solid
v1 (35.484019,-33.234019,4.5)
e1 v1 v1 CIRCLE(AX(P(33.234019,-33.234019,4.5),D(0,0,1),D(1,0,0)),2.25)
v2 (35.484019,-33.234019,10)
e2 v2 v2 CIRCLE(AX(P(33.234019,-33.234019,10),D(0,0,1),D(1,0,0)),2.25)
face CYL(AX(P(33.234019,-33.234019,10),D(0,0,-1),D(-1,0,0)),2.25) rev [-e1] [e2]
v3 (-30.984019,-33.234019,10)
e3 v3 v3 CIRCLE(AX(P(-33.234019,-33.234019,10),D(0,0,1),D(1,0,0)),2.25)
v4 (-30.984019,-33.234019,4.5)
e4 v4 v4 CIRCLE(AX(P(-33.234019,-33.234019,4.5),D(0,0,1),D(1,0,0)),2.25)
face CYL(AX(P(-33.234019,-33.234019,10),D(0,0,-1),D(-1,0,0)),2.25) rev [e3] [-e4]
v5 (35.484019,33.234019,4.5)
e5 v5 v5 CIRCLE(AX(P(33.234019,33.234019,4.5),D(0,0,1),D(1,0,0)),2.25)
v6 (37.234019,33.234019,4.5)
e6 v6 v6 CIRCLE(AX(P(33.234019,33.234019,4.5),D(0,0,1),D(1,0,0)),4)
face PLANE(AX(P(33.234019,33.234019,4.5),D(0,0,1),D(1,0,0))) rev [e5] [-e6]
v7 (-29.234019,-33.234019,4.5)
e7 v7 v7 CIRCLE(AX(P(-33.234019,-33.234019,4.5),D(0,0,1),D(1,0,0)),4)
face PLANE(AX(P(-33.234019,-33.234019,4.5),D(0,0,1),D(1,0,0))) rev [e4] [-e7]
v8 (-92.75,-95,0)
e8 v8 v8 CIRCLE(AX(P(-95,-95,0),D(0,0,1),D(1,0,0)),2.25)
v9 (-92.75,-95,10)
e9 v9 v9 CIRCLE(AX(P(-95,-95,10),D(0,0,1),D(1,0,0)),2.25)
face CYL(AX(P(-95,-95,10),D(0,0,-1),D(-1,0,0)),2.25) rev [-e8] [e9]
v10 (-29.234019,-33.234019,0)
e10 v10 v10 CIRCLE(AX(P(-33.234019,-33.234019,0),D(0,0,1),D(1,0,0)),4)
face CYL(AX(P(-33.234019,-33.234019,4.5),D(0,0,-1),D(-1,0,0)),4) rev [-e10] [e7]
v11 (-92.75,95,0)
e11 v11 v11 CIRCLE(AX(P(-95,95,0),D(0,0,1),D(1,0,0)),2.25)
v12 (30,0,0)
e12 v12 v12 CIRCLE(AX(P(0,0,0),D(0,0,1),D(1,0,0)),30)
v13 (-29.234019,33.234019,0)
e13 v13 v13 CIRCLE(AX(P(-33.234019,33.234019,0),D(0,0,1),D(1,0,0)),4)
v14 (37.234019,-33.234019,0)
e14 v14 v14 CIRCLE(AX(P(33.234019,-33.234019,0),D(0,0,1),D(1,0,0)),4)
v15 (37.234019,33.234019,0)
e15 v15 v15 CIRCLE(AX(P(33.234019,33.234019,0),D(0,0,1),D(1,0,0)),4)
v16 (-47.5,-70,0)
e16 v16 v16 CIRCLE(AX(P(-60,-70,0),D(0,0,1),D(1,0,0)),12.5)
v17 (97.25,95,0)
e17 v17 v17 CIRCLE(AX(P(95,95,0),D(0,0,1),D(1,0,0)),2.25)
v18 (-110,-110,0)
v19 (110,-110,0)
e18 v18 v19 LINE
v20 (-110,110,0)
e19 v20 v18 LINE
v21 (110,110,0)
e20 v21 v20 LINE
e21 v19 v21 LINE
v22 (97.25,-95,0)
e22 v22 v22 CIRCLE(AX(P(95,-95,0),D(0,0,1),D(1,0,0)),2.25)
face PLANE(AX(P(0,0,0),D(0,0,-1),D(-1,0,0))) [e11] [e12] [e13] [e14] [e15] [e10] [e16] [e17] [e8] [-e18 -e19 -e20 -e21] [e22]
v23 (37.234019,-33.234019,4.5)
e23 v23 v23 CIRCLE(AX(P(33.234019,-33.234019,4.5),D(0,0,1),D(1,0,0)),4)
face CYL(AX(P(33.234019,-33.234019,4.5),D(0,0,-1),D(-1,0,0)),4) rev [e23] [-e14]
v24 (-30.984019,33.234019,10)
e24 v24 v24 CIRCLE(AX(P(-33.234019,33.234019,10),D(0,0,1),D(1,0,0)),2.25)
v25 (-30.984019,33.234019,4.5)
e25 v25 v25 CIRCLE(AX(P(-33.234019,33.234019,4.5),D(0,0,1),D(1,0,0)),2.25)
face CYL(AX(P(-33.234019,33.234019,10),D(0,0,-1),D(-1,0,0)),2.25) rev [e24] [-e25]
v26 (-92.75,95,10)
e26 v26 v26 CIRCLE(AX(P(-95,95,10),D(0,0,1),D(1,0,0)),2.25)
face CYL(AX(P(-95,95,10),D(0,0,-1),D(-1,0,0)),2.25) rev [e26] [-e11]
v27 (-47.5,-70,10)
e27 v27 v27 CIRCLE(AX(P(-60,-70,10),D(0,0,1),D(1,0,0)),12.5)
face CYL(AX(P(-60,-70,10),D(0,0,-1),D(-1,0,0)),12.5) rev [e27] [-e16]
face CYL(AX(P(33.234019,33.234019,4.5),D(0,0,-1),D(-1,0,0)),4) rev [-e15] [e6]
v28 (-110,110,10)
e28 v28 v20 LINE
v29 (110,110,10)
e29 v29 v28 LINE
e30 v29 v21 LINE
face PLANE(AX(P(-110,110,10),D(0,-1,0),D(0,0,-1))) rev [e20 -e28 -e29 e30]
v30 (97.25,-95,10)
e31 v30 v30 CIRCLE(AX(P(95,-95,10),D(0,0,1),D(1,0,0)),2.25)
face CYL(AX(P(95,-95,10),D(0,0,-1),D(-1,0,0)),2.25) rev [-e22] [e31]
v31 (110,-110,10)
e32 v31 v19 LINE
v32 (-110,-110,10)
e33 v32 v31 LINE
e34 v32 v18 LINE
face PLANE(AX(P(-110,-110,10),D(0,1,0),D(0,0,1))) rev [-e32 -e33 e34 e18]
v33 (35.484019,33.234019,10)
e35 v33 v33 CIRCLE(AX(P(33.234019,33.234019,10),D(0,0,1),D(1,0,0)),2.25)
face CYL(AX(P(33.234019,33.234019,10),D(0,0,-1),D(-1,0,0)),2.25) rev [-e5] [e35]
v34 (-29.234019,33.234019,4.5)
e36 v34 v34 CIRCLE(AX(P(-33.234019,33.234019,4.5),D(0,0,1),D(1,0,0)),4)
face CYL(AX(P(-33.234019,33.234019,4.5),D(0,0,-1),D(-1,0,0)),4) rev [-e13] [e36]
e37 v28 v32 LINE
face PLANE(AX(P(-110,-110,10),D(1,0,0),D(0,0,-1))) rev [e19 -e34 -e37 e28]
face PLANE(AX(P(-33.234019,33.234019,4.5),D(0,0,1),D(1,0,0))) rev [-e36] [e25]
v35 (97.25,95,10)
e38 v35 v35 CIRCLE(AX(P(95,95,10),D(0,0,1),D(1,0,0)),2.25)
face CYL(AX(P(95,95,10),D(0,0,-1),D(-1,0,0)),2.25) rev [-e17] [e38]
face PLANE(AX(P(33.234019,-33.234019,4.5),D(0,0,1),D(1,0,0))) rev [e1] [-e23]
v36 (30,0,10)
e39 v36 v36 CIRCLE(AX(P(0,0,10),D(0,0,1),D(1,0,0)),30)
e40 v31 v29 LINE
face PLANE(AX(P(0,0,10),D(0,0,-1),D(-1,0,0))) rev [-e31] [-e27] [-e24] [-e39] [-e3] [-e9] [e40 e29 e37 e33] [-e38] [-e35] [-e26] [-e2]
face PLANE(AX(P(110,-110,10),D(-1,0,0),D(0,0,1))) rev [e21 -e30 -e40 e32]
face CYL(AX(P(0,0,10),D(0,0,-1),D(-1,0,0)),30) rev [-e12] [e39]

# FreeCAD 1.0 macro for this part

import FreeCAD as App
import Part
import Sketcher

V = App.Vector


def add_polygon(sketch, points):
    """Adds a closed chain of lines whose ends are joined by coincident constraints."""
    first, n = sketch.GeometryCount, len(points)
    for a, b in zip(points, points[1:] + points[:1]):
        sketch.addGeometry(Part.LineSegment(App.Vector(*a, 0), App.Vector(*b, 0)), False)
    for i in range(n):
        sketch.addConstraint(Sketcher.Constraint("Coincident", first + i, 2, first + (i + 1) % n, 1))

doc = App.newDocument("Part")
body = doc.addObject("PartDesign::Body", "Body")

sketch1 = body.newObject("Sketcher::SketchObject", "Sketch")
sketch1.AttachmentSupport = (doc.getObject("XY_Plane"), [""])
sketch1.MapMode = "FlatFace"
add_polygon(sketch1, [(-110, 110), (-110, -110), (110, -110), (110, 110)])
sketch1.addConstraint(Sketcher.Constraint("Vertical", 0))
sketch1.addConstraint(Sketcher.Constraint("Horizontal", 1))
sketch1.addConstraint(Sketcher.Constraint("Vertical", 2))
sketch1.addConstraint(Sketcher.Constraint("Horizontal", 3))
sketch1.addConstraint(Sketcher.Constraint("Symmetric", 0, 2, 2, 2, -1, 1))
sketch1.addConstraint(Sketcher.Constraint("Equal", 3, 0))
sketch1.addConstraint(Sketcher.Constraint("DistanceX", 1, 1, 1, 2, 220.0))
pad1 = body.newObject("PartDesign::Pad", "Pad")
pad1.Profile = sketch1
pad1.Length = 10

sketch2 = body.newObject("Sketcher::SketchObject", "Sketch001")
sketch2.AttachmentSupport = (doc.getObject("XY_Plane"), [""])
sketch2.MapMode = "FlatFace"
sketch2.addGeometry(Part.Circle(V(0, 0, 0), V(0, 0, 1), 30), False)
sketch2.addConstraint(Sketcher.Constraint("Coincident", 0, 3, -1, 1))
sketch2.addConstraint(Sketcher.Constraint("Diameter", 0, 60.0))
pocket1 = body.newObject("PartDesign::Pocket", "Pocket")
pocket1.Profile = sketch2
pocket1.Length = 10
pocket1.Reversed = True

sketch3 = body.newObject("Sketcher::SketchObject", "Sketch002")
sketch3.AttachmentSupport = (doc.getObject("XY_Plane"), [""])
sketch3.MapMode = "FlatFace"
sketch3.addGeometry(Part.Circle(V(33.2, 33.2, 0), V(0, 0, 1), 2.2), False)
sketch3.addGeometry(Part.Circle(V(-33.2, 33.2, 0), V(0, 0, 1), 2.2), False)
sketch3.addGeometry(Part.Circle(V(-33.2, -33.2, 0), V(0, 0, 1), 2.2), False)
sketch3.addGeometry(Part.Circle(V(33.2, -33.2, 0), V(0, 0, 1), 2.2), False)
sketch3.addConstraint(Sketcher.Constraint("Equal", 0, 1))
sketch3.addConstraint(Sketcher.Constraint("Equal", 1, 2))
sketch3.addConstraint(Sketcher.Constraint("Equal", 2, 3))
sketch3.addConstraint(Sketcher.Constraint("Symmetric", 0, 3, 2, 3, -1, 1))
sketch3.addConstraint(Sketcher.Constraint("Symmetric", 1, 3, 3, 3, -1, 1))
sketch3.addConstraint(Sketcher.Constraint("Symmetric", 0, 3, 1, 3, -2))
sketch3.addConstraint(Sketcher.Constraint("Diameter", 0, 4.5))
sketch3.addConstraint(Sketcher.Constraint("DistanceX", -1, 1, 0, 3, 33.234019))
sketch3.addConstraint(Sketcher.Constraint("DistanceY", -1, 1, 0, 3, 33.234019))
pocket2 = body.newObject("PartDesign::Pocket", "Pocket001")
pocket2.Profile = sketch3
pocket2.Length = 10
pocket2.Reversed = True

sketch4 = body.newObject("Sketcher::SketchObject", "Sketch003")
sketch4.AttachmentSupport = (doc.getObject("XY_Plane"), [""])
sketch4.MapMode = "FlatFace"
sketch4.addGeometry(Part.Circle(V(33.2, 33.2, 0), V(0, 0, 1), 4), False)
sketch4.addGeometry(Part.Circle(V(-33.2, 33.2, 0), V(0, 0, 1), 4), False)
sketch4.addGeometry(Part.Circle(V(-33.2, -33.2, 0), V(0, 0, 1), 4), False)
sketch4.addGeometry(Part.Circle(V(33.2, -33.2, 0), V(0, 0, 1), 4), False)
sketch4.addConstraint(Sketcher.Constraint("Equal", 0, 1))
sketch4.addConstraint(Sketcher.Constraint("Equal", 1, 2))
sketch4.addConstraint(Sketcher.Constraint("Equal", 2, 3))
sketch4.addConstraint(Sketcher.Constraint("Symmetric", 0, 3, 2, 3, -1, 1))
sketch4.addConstraint(Sketcher.Constraint("Symmetric", 1, 3, 3, 3, -1, 1))
sketch4.addConstraint(Sketcher.Constraint("Symmetric", 0, 3, 1, 3, -2))
sketch4.addConstraint(Sketcher.Constraint("Diameter", 0, 8.0))
sketch4.addConstraint(Sketcher.Constraint("DistanceX", -1, 1, 0, 3, 33.234019))
sketch4.addConstraint(Sketcher.Constraint("DistanceY", -1, 1, 0, 3, 33.234019))
pocket3 = body.newObject("PartDesign::Pocket", "Pocket002")
pocket3.Profile = sketch4
pocket3.Length = 4.5
pocket3.Reversed = True

sketch5 = body.newObject("Sketcher::SketchObject", "Sketch004")
sketch5.AttachmentSupport = (doc.getObject("XY_Plane"), [""])
sketch5.MapMode = "FlatFace"
sketch5.addGeometry(Part.Circle(V(-95, -95, 0), V(0, 0, 1), 2.2), False)
sketch5.addGeometry(Part.Circle(V(-95, 95, 0), V(0, 0, 1), 2.2), False)
sketch5.addGeometry(Part.Circle(V(95, -95, 0), V(0, 0, 1), 2.2), False)
sketch5.addGeometry(Part.Circle(V(95, 95, 0), V(0, 0, 1), 2.2), False)
sketch5.addConstraint(Sketcher.Constraint("Equal", 0, 1))
sketch5.addConstraint(Sketcher.Constraint("Equal", 1, 2))
sketch5.addConstraint(Sketcher.Constraint("Equal", 2, 3))
sketch5.addConstraint(Sketcher.Constraint("Symmetric", 1, 3, 2, 3, -1, 1))
sketch5.addConstraint(Sketcher.Constraint("Symmetric", 0, 3, 3, 3, -1, 1))
sketch5.addConstraint(Sketcher.Constraint("Symmetric", 0, 3, 2, 3, -2))
sketch5.addConstraint(Sketcher.Constraint("Diameter", 0, 4.5))
sketch5.addConstraint(Sketcher.Constraint("DistanceX", 0, 3, -1, 1, 95.0))
sketch5.addConstraint(Sketcher.Constraint("DistanceY", 0, 3, -1, 1, 95.0))
pocket4 = body.newObject("PartDesign::Pocket", "Pocket003")
pocket4.Profile = sketch5
pocket4.Length = 10
pocket4.Reversed = True

sketch6 = body.newObject("Sketcher::SketchObject", "Sketch005")
sketch6.AttachmentSupport = (doc.getObject("XY_Plane"), [""])
sketch6.MapMode = "FlatFace"
sketch6.addGeometry(Part.Circle(V(-60, -70, 0), V(0, 0, 1), 12), False)
sketch6.addConstraint(Sketcher.Constraint("Diameter", 0, 25.0))
sketch6.addConstraint(Sketcher.Constraint("DistanceX", 0, 3, -1, 1, 60.0))
sketch6.addConstraint(Sketcher.Constraint("DistanceY", 0, 3, -1, 1, 70.0))
pocket5 = body.newObject("PartDesign::Pocket", "Pocket004")
pocket5.Profile = sketch6
pocket5.Length = 10
pocket5.Reversed = True

doc.recompute()
